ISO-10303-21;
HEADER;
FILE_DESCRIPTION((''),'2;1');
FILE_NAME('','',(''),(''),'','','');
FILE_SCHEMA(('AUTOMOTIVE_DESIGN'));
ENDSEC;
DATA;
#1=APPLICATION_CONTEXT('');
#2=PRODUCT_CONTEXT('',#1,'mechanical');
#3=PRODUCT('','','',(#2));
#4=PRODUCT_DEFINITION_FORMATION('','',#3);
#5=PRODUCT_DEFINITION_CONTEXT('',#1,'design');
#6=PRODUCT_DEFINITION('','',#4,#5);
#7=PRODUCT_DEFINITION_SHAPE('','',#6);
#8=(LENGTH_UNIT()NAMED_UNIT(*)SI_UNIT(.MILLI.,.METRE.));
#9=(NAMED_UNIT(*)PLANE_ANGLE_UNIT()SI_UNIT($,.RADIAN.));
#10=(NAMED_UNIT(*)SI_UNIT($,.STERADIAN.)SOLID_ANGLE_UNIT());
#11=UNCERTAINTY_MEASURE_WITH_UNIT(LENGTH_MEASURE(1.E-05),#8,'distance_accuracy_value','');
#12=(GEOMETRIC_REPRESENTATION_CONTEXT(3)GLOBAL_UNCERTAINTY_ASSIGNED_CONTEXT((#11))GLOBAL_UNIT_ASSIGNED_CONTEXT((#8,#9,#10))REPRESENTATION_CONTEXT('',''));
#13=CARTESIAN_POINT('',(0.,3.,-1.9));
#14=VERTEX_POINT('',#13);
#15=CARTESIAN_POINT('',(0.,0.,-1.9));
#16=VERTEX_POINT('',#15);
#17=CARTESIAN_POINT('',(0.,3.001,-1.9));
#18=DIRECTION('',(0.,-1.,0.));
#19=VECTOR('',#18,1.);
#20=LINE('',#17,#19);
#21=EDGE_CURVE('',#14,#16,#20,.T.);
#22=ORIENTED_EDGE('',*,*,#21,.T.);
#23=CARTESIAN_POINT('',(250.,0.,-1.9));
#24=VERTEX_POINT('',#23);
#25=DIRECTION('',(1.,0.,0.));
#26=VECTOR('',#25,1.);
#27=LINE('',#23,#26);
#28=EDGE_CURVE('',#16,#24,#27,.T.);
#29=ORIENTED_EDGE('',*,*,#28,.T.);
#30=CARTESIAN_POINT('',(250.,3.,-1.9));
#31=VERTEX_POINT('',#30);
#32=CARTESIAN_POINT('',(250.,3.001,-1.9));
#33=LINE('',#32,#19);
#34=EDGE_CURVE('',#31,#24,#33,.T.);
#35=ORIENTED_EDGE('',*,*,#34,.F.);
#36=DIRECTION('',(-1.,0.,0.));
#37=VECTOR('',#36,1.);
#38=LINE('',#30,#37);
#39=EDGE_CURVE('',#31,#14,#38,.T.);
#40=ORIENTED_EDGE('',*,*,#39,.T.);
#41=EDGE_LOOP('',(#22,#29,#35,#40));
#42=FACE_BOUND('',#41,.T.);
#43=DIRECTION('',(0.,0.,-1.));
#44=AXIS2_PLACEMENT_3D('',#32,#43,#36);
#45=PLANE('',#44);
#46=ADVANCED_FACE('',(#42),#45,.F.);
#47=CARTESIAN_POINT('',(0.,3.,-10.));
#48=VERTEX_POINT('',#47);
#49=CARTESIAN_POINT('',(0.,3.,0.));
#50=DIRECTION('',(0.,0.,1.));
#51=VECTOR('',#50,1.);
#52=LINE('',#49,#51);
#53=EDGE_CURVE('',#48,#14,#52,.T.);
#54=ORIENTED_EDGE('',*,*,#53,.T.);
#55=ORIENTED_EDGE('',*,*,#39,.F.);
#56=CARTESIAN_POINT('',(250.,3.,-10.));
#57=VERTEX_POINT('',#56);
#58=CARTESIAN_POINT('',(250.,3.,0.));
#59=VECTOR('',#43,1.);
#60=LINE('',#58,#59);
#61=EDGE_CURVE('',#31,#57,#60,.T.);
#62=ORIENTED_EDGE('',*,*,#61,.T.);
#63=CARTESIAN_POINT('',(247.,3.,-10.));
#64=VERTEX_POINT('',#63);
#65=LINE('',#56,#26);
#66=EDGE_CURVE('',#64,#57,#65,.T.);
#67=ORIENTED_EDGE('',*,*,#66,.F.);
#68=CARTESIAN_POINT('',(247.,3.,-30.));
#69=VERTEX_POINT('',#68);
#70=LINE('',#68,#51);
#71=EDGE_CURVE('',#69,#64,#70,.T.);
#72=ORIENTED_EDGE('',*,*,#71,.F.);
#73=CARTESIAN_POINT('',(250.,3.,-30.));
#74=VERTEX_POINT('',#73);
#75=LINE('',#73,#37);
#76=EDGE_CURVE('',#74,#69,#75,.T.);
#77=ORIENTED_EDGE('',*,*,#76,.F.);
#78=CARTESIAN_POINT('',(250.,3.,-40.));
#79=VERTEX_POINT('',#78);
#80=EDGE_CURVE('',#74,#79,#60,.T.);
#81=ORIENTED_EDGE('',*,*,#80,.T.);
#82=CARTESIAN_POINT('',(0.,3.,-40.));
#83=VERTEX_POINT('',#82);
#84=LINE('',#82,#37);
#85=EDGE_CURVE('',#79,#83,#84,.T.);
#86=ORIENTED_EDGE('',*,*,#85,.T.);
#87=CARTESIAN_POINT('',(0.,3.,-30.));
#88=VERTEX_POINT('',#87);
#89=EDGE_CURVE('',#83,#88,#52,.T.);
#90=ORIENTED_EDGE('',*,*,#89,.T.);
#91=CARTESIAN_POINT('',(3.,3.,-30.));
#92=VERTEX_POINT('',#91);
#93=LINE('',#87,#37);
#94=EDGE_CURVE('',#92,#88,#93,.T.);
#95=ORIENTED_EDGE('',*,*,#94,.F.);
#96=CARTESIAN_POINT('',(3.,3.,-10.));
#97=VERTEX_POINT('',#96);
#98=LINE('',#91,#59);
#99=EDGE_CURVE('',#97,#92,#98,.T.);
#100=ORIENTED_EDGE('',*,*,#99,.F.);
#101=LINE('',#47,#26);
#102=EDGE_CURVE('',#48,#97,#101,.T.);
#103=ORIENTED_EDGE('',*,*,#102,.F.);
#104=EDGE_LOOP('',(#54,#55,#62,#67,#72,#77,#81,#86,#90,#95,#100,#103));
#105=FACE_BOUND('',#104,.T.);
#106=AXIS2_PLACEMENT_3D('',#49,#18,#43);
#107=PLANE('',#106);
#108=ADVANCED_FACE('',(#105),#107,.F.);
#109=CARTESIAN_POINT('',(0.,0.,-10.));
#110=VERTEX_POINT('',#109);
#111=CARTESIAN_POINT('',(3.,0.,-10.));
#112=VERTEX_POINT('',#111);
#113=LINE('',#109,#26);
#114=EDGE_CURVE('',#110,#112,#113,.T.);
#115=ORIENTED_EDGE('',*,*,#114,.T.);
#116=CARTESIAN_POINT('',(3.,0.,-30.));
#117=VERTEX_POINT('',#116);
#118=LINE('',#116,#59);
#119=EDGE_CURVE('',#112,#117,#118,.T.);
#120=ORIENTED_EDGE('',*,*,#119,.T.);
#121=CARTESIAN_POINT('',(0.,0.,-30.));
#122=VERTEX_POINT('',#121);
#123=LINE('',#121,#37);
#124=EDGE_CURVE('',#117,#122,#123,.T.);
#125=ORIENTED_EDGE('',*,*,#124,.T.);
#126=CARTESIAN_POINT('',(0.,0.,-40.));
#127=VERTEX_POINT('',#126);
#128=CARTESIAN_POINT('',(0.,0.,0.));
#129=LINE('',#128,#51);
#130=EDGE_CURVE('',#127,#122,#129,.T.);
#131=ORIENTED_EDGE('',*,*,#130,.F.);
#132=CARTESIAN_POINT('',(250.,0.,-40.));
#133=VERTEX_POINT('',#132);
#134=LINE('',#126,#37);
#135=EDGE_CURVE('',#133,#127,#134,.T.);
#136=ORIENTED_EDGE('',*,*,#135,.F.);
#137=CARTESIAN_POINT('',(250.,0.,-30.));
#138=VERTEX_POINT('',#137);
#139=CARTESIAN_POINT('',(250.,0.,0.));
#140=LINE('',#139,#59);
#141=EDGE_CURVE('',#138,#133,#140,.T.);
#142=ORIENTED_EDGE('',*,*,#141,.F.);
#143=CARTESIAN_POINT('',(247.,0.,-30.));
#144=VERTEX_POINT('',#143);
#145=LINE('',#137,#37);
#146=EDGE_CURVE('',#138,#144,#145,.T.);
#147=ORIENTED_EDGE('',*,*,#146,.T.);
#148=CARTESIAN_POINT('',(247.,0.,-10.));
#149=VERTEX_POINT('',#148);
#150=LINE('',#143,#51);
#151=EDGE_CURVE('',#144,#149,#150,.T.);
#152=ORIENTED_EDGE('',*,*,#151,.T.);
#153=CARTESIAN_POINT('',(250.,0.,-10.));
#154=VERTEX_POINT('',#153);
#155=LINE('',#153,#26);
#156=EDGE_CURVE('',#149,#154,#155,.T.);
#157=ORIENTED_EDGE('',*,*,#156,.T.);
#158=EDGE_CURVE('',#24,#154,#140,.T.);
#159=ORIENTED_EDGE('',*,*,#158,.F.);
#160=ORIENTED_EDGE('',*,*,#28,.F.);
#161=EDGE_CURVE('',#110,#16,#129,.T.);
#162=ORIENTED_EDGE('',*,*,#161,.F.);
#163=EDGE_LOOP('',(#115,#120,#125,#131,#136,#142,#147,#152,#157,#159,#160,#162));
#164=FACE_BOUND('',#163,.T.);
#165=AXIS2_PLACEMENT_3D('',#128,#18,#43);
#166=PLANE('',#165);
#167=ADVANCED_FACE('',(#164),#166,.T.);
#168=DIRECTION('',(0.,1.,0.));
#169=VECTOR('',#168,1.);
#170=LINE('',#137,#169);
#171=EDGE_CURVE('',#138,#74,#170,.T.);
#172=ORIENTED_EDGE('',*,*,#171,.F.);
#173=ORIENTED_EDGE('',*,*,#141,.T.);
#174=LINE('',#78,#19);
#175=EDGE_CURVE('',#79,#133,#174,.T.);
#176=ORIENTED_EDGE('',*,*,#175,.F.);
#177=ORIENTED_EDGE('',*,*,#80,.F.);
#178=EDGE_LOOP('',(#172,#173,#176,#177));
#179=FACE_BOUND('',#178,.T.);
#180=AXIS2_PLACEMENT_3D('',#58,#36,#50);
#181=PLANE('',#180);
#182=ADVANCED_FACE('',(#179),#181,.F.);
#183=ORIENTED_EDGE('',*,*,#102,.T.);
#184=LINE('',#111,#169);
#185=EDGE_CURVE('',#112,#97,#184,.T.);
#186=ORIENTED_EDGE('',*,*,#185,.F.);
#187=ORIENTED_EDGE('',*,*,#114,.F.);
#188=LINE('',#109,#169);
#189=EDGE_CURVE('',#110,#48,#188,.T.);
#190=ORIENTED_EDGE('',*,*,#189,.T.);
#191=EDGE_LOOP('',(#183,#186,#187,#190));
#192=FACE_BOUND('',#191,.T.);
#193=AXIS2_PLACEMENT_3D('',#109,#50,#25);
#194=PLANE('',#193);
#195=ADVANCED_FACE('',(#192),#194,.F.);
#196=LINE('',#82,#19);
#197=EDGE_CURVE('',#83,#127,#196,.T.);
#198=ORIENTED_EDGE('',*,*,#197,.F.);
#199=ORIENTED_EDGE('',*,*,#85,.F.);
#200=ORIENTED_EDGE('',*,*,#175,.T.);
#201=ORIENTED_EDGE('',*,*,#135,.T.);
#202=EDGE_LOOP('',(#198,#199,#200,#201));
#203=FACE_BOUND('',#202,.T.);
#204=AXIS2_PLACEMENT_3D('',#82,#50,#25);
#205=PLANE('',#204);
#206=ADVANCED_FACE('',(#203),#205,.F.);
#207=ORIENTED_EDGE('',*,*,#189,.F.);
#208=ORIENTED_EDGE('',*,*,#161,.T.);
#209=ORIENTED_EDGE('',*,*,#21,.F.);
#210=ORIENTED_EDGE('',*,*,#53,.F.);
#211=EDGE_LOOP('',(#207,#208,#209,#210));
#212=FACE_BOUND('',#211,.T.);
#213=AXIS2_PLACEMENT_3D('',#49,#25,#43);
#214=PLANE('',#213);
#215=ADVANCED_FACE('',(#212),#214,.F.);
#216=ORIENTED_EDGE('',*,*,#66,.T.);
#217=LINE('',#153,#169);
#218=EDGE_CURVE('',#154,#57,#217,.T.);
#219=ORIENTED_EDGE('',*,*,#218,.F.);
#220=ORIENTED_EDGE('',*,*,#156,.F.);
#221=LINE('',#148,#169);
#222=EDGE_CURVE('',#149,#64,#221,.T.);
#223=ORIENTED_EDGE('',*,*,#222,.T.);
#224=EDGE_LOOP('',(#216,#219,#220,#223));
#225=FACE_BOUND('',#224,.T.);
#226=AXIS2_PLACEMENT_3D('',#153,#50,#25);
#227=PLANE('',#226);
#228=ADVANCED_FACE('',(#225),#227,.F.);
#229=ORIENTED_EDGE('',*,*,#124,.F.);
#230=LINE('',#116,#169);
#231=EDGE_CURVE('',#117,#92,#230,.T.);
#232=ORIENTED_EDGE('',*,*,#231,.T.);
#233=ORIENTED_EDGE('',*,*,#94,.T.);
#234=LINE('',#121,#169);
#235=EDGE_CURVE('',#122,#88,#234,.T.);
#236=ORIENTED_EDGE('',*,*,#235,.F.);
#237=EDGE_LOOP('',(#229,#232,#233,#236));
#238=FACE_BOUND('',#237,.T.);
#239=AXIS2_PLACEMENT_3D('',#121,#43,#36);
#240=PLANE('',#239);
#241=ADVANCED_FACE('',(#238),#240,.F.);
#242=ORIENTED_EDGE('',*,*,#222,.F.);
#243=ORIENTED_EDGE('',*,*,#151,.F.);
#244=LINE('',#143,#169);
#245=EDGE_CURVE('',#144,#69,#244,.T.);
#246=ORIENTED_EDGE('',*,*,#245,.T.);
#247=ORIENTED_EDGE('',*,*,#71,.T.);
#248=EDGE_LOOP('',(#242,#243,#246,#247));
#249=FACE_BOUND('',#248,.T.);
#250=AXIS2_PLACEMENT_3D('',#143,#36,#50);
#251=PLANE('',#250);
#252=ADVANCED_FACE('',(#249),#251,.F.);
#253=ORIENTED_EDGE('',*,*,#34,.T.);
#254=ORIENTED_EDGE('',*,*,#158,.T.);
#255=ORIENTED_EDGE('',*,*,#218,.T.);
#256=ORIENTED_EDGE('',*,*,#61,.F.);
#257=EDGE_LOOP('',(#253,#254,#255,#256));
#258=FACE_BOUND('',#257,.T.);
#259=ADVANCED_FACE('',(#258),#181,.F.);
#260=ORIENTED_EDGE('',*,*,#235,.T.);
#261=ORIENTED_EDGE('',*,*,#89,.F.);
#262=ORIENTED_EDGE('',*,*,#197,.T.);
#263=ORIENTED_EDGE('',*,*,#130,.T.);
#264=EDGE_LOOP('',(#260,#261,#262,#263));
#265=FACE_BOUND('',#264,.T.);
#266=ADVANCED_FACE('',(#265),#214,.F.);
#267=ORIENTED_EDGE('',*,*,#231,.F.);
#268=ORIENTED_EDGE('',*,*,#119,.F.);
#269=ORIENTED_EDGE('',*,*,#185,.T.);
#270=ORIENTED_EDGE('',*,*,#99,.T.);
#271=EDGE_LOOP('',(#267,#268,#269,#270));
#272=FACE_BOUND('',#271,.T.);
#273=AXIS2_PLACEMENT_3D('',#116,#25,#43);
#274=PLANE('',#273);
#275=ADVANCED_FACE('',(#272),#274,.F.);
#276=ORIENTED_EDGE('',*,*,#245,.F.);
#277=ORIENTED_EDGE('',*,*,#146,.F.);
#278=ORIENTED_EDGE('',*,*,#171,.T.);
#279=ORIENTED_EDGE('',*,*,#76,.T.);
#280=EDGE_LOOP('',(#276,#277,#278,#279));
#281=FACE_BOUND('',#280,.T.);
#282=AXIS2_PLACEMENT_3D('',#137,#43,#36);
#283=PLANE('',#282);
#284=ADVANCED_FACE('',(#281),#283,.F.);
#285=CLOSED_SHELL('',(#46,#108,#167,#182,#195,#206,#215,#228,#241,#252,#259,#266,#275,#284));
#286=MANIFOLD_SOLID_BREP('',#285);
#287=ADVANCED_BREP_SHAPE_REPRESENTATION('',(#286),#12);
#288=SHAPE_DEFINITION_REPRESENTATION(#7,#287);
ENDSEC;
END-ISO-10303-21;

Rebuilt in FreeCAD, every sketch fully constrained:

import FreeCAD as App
import Part
import Sketcher


def add_polygon(sketch, points):
    """Adds a closed chain of lines whose ends are joined by coincident constraints."""
    first, n = sketch.GeometryCount, len(points)
    for a, b in zip(points, points[1:] + points[:1]):
        sketch.addGeometry(Part.LineSegment(App.Vector(*a, 0), App.Vector(*b, 0)), False)
    for i in range(n):
        sketch.addConstraint(Sketcher.Constraint("Coincident", first + i, 2, first + (i + 1) % n, 1))

doc = App.newDocument("Part")
params = doc.addObject("Spreadsheet::Sheet", "Params")
for row, (alias, value) in enumerate([
    ("sketch1_width", "250 mm"),
    ("sketch1_height", "40 mm"),
    ("pad1_length", "3 mm"),
    ("sketch2_width", "3 mm"),
    ("sketch2_height", "20 mm"),
    ("sketch3_width", "250 mm"),
    ("sketch3_height", "1.9 mm"),
], start=1):
    params.set(f"A{row}", alias)
    params.set(f"B{row}", "=" + value)
    params.setAlias(f"B{row}", alias)

body = doc.addObject("PartDesign::Body", "Body")

# Sketch on XZ plane
sketch1 = body.newObject("Sketcher::SketchObject", "Sketch")
sketch1.AttachmentSupport = (doc.getObject("XZ_Plane"), [""])
sketch1.MapMode = "FlatFace"
add_polygon(sketch1, [(0, -40), (0, 0), (250, 0), (250, -40)])  # lines 0-3
sketch1.addConstraint([
    Sketcher.Constraint("Vertical", 0),
    Sketcher.Constraint("Horizontal", 1),
    Sketcher.Constraint("Vertical", 2),
    Sketcher.Constraint("Horizontal", 3),
    Sketcher.Constraint("Coincident", 0, 2, -1, 1),
    Sketcher.Constraint("DistanceX", 1, 1, 1, 2, 250.0),
    Sketcher.Constraint("DistanceY", 0, 1, 0, 2, 40.0),
])
sketch1.setExpression("Constraints[9]", "Params.sketch1_width")
sketch1.setExpression("Constraints[10]", "Params.sketch1_height")
pad1 = body.newObject("PartDesign::Pad", "Pad")
pad1.Profile = sketch1
pad1.setExpression("Length", "Params.pad1_length")
pad1.Reversed = True

# Sketch on XZ plane
sketch2 = body.newObject("Sketcher::SketchObject", "Sketch001")
sketch2.AttachmentSupport = (doc.getObject("XZ_Plane"), [""])
sketch2.MapMode = "FlatFace"
sketch2.AttachmentOffset = App.Placement(App.Vector(0, 0, -3), App.Rotation())
add_polygon(sketch2, [(0, -30), (0, -10), (3, -10), (3, -30)])  # lines 0-3
add_polygon(sketch2, [(247, -30), (247, -10), (250, -10), (250, -30)])  # lines 4-7
sketch2.addConstraint([
    Sketcher.Constraint("Vertical", 0),
    Sketcher.Constraint("Horizontal", 1),
    Sketcher.Constraint("Vertical", 2),
    Sketcher.Constraint("Horizontal", 3),
    Sketcher.Constraint("Vertical", 4),
    Sketcher.Constraint("Horizontal", 5),
    Sketcher.Constraint("Vertical", 6),
    Sketcher.Constraint("Horizontal", 7),
    Sketcher.Constraint("PointOnObject", 0, 2, -2),
    Sketcher.Constraint("Horizontal", 1, 2, 4, 2),
    Sketcher.Constraint("Horizontal", 3, 2, 6, 2),
    Sketcher.Constraint("Equal", 3, 5),
    Sketcher.Constraint("DistanceX", 1, 1, 1, 2, 3.0),
    Sketcher.Constraint("DistanceY", 0, 1, 0, 2, 20.0),
    Sketcher.Constraint("DistanceY", 0, 2, -1, 1, 10.0),
    Sketcher.Constraint("DistanceX", -1, 1, 4, 2, 247.0),
])
sketch2.setExpression("Constraints[20]", "Params.sketch2_width")
sketch2.setExpression("Constraints[21]", "Params.sketch2_height")
pocket1 = body.newObject("PartDesign::Pocket", "Pocket")
pocket1.Profile = sketch2
pocket1.Type = "ThroughAll"
pocket1.Reversed = True

# Sketch on XZ plane
sketch3 = body.newObject("Sketcher::SketchObject", "Sketch002")
sketch3.AttachmentSupport = (doc.getObject("XZ_Plane"), [""])
sketch3.MapMode = "FlatFace"
add_polygon(sketch3, [(0, 0), (0, -1.9), (250, -1.9), (250, 0)])  # lines 0-3
sketch3.addConstraint([
    Sketcher.Constraint("Vertical", 0),
    Sketcher.Constraint("Horizontal", 1),
    Sketcher.Constraint("Vertical", 2),
    Sketcher.Constraint("Horizontal", 3),
    Sketcher.Constraint("Coincident", 3, 2, -1, 1),
    Sketcher.Constraint("DistanceX", 1, 1, 1, 2, 250.0),
    Sketcher.Constraint("DistanceY", 0, 2, 0, 1, 1.9),
])
sketch3.setExpression("Constraints[9]", "Params.sketch3_width")
sketch3.setExpression("Constraints[10]", "Params.sketch3_height")
pocket2 = body.newObject("PartDesign::Pocket", "Pocket001")
pocket2.Profile = sketch3
pocket2.Type = "UpToFirst"

doc.recompute()
